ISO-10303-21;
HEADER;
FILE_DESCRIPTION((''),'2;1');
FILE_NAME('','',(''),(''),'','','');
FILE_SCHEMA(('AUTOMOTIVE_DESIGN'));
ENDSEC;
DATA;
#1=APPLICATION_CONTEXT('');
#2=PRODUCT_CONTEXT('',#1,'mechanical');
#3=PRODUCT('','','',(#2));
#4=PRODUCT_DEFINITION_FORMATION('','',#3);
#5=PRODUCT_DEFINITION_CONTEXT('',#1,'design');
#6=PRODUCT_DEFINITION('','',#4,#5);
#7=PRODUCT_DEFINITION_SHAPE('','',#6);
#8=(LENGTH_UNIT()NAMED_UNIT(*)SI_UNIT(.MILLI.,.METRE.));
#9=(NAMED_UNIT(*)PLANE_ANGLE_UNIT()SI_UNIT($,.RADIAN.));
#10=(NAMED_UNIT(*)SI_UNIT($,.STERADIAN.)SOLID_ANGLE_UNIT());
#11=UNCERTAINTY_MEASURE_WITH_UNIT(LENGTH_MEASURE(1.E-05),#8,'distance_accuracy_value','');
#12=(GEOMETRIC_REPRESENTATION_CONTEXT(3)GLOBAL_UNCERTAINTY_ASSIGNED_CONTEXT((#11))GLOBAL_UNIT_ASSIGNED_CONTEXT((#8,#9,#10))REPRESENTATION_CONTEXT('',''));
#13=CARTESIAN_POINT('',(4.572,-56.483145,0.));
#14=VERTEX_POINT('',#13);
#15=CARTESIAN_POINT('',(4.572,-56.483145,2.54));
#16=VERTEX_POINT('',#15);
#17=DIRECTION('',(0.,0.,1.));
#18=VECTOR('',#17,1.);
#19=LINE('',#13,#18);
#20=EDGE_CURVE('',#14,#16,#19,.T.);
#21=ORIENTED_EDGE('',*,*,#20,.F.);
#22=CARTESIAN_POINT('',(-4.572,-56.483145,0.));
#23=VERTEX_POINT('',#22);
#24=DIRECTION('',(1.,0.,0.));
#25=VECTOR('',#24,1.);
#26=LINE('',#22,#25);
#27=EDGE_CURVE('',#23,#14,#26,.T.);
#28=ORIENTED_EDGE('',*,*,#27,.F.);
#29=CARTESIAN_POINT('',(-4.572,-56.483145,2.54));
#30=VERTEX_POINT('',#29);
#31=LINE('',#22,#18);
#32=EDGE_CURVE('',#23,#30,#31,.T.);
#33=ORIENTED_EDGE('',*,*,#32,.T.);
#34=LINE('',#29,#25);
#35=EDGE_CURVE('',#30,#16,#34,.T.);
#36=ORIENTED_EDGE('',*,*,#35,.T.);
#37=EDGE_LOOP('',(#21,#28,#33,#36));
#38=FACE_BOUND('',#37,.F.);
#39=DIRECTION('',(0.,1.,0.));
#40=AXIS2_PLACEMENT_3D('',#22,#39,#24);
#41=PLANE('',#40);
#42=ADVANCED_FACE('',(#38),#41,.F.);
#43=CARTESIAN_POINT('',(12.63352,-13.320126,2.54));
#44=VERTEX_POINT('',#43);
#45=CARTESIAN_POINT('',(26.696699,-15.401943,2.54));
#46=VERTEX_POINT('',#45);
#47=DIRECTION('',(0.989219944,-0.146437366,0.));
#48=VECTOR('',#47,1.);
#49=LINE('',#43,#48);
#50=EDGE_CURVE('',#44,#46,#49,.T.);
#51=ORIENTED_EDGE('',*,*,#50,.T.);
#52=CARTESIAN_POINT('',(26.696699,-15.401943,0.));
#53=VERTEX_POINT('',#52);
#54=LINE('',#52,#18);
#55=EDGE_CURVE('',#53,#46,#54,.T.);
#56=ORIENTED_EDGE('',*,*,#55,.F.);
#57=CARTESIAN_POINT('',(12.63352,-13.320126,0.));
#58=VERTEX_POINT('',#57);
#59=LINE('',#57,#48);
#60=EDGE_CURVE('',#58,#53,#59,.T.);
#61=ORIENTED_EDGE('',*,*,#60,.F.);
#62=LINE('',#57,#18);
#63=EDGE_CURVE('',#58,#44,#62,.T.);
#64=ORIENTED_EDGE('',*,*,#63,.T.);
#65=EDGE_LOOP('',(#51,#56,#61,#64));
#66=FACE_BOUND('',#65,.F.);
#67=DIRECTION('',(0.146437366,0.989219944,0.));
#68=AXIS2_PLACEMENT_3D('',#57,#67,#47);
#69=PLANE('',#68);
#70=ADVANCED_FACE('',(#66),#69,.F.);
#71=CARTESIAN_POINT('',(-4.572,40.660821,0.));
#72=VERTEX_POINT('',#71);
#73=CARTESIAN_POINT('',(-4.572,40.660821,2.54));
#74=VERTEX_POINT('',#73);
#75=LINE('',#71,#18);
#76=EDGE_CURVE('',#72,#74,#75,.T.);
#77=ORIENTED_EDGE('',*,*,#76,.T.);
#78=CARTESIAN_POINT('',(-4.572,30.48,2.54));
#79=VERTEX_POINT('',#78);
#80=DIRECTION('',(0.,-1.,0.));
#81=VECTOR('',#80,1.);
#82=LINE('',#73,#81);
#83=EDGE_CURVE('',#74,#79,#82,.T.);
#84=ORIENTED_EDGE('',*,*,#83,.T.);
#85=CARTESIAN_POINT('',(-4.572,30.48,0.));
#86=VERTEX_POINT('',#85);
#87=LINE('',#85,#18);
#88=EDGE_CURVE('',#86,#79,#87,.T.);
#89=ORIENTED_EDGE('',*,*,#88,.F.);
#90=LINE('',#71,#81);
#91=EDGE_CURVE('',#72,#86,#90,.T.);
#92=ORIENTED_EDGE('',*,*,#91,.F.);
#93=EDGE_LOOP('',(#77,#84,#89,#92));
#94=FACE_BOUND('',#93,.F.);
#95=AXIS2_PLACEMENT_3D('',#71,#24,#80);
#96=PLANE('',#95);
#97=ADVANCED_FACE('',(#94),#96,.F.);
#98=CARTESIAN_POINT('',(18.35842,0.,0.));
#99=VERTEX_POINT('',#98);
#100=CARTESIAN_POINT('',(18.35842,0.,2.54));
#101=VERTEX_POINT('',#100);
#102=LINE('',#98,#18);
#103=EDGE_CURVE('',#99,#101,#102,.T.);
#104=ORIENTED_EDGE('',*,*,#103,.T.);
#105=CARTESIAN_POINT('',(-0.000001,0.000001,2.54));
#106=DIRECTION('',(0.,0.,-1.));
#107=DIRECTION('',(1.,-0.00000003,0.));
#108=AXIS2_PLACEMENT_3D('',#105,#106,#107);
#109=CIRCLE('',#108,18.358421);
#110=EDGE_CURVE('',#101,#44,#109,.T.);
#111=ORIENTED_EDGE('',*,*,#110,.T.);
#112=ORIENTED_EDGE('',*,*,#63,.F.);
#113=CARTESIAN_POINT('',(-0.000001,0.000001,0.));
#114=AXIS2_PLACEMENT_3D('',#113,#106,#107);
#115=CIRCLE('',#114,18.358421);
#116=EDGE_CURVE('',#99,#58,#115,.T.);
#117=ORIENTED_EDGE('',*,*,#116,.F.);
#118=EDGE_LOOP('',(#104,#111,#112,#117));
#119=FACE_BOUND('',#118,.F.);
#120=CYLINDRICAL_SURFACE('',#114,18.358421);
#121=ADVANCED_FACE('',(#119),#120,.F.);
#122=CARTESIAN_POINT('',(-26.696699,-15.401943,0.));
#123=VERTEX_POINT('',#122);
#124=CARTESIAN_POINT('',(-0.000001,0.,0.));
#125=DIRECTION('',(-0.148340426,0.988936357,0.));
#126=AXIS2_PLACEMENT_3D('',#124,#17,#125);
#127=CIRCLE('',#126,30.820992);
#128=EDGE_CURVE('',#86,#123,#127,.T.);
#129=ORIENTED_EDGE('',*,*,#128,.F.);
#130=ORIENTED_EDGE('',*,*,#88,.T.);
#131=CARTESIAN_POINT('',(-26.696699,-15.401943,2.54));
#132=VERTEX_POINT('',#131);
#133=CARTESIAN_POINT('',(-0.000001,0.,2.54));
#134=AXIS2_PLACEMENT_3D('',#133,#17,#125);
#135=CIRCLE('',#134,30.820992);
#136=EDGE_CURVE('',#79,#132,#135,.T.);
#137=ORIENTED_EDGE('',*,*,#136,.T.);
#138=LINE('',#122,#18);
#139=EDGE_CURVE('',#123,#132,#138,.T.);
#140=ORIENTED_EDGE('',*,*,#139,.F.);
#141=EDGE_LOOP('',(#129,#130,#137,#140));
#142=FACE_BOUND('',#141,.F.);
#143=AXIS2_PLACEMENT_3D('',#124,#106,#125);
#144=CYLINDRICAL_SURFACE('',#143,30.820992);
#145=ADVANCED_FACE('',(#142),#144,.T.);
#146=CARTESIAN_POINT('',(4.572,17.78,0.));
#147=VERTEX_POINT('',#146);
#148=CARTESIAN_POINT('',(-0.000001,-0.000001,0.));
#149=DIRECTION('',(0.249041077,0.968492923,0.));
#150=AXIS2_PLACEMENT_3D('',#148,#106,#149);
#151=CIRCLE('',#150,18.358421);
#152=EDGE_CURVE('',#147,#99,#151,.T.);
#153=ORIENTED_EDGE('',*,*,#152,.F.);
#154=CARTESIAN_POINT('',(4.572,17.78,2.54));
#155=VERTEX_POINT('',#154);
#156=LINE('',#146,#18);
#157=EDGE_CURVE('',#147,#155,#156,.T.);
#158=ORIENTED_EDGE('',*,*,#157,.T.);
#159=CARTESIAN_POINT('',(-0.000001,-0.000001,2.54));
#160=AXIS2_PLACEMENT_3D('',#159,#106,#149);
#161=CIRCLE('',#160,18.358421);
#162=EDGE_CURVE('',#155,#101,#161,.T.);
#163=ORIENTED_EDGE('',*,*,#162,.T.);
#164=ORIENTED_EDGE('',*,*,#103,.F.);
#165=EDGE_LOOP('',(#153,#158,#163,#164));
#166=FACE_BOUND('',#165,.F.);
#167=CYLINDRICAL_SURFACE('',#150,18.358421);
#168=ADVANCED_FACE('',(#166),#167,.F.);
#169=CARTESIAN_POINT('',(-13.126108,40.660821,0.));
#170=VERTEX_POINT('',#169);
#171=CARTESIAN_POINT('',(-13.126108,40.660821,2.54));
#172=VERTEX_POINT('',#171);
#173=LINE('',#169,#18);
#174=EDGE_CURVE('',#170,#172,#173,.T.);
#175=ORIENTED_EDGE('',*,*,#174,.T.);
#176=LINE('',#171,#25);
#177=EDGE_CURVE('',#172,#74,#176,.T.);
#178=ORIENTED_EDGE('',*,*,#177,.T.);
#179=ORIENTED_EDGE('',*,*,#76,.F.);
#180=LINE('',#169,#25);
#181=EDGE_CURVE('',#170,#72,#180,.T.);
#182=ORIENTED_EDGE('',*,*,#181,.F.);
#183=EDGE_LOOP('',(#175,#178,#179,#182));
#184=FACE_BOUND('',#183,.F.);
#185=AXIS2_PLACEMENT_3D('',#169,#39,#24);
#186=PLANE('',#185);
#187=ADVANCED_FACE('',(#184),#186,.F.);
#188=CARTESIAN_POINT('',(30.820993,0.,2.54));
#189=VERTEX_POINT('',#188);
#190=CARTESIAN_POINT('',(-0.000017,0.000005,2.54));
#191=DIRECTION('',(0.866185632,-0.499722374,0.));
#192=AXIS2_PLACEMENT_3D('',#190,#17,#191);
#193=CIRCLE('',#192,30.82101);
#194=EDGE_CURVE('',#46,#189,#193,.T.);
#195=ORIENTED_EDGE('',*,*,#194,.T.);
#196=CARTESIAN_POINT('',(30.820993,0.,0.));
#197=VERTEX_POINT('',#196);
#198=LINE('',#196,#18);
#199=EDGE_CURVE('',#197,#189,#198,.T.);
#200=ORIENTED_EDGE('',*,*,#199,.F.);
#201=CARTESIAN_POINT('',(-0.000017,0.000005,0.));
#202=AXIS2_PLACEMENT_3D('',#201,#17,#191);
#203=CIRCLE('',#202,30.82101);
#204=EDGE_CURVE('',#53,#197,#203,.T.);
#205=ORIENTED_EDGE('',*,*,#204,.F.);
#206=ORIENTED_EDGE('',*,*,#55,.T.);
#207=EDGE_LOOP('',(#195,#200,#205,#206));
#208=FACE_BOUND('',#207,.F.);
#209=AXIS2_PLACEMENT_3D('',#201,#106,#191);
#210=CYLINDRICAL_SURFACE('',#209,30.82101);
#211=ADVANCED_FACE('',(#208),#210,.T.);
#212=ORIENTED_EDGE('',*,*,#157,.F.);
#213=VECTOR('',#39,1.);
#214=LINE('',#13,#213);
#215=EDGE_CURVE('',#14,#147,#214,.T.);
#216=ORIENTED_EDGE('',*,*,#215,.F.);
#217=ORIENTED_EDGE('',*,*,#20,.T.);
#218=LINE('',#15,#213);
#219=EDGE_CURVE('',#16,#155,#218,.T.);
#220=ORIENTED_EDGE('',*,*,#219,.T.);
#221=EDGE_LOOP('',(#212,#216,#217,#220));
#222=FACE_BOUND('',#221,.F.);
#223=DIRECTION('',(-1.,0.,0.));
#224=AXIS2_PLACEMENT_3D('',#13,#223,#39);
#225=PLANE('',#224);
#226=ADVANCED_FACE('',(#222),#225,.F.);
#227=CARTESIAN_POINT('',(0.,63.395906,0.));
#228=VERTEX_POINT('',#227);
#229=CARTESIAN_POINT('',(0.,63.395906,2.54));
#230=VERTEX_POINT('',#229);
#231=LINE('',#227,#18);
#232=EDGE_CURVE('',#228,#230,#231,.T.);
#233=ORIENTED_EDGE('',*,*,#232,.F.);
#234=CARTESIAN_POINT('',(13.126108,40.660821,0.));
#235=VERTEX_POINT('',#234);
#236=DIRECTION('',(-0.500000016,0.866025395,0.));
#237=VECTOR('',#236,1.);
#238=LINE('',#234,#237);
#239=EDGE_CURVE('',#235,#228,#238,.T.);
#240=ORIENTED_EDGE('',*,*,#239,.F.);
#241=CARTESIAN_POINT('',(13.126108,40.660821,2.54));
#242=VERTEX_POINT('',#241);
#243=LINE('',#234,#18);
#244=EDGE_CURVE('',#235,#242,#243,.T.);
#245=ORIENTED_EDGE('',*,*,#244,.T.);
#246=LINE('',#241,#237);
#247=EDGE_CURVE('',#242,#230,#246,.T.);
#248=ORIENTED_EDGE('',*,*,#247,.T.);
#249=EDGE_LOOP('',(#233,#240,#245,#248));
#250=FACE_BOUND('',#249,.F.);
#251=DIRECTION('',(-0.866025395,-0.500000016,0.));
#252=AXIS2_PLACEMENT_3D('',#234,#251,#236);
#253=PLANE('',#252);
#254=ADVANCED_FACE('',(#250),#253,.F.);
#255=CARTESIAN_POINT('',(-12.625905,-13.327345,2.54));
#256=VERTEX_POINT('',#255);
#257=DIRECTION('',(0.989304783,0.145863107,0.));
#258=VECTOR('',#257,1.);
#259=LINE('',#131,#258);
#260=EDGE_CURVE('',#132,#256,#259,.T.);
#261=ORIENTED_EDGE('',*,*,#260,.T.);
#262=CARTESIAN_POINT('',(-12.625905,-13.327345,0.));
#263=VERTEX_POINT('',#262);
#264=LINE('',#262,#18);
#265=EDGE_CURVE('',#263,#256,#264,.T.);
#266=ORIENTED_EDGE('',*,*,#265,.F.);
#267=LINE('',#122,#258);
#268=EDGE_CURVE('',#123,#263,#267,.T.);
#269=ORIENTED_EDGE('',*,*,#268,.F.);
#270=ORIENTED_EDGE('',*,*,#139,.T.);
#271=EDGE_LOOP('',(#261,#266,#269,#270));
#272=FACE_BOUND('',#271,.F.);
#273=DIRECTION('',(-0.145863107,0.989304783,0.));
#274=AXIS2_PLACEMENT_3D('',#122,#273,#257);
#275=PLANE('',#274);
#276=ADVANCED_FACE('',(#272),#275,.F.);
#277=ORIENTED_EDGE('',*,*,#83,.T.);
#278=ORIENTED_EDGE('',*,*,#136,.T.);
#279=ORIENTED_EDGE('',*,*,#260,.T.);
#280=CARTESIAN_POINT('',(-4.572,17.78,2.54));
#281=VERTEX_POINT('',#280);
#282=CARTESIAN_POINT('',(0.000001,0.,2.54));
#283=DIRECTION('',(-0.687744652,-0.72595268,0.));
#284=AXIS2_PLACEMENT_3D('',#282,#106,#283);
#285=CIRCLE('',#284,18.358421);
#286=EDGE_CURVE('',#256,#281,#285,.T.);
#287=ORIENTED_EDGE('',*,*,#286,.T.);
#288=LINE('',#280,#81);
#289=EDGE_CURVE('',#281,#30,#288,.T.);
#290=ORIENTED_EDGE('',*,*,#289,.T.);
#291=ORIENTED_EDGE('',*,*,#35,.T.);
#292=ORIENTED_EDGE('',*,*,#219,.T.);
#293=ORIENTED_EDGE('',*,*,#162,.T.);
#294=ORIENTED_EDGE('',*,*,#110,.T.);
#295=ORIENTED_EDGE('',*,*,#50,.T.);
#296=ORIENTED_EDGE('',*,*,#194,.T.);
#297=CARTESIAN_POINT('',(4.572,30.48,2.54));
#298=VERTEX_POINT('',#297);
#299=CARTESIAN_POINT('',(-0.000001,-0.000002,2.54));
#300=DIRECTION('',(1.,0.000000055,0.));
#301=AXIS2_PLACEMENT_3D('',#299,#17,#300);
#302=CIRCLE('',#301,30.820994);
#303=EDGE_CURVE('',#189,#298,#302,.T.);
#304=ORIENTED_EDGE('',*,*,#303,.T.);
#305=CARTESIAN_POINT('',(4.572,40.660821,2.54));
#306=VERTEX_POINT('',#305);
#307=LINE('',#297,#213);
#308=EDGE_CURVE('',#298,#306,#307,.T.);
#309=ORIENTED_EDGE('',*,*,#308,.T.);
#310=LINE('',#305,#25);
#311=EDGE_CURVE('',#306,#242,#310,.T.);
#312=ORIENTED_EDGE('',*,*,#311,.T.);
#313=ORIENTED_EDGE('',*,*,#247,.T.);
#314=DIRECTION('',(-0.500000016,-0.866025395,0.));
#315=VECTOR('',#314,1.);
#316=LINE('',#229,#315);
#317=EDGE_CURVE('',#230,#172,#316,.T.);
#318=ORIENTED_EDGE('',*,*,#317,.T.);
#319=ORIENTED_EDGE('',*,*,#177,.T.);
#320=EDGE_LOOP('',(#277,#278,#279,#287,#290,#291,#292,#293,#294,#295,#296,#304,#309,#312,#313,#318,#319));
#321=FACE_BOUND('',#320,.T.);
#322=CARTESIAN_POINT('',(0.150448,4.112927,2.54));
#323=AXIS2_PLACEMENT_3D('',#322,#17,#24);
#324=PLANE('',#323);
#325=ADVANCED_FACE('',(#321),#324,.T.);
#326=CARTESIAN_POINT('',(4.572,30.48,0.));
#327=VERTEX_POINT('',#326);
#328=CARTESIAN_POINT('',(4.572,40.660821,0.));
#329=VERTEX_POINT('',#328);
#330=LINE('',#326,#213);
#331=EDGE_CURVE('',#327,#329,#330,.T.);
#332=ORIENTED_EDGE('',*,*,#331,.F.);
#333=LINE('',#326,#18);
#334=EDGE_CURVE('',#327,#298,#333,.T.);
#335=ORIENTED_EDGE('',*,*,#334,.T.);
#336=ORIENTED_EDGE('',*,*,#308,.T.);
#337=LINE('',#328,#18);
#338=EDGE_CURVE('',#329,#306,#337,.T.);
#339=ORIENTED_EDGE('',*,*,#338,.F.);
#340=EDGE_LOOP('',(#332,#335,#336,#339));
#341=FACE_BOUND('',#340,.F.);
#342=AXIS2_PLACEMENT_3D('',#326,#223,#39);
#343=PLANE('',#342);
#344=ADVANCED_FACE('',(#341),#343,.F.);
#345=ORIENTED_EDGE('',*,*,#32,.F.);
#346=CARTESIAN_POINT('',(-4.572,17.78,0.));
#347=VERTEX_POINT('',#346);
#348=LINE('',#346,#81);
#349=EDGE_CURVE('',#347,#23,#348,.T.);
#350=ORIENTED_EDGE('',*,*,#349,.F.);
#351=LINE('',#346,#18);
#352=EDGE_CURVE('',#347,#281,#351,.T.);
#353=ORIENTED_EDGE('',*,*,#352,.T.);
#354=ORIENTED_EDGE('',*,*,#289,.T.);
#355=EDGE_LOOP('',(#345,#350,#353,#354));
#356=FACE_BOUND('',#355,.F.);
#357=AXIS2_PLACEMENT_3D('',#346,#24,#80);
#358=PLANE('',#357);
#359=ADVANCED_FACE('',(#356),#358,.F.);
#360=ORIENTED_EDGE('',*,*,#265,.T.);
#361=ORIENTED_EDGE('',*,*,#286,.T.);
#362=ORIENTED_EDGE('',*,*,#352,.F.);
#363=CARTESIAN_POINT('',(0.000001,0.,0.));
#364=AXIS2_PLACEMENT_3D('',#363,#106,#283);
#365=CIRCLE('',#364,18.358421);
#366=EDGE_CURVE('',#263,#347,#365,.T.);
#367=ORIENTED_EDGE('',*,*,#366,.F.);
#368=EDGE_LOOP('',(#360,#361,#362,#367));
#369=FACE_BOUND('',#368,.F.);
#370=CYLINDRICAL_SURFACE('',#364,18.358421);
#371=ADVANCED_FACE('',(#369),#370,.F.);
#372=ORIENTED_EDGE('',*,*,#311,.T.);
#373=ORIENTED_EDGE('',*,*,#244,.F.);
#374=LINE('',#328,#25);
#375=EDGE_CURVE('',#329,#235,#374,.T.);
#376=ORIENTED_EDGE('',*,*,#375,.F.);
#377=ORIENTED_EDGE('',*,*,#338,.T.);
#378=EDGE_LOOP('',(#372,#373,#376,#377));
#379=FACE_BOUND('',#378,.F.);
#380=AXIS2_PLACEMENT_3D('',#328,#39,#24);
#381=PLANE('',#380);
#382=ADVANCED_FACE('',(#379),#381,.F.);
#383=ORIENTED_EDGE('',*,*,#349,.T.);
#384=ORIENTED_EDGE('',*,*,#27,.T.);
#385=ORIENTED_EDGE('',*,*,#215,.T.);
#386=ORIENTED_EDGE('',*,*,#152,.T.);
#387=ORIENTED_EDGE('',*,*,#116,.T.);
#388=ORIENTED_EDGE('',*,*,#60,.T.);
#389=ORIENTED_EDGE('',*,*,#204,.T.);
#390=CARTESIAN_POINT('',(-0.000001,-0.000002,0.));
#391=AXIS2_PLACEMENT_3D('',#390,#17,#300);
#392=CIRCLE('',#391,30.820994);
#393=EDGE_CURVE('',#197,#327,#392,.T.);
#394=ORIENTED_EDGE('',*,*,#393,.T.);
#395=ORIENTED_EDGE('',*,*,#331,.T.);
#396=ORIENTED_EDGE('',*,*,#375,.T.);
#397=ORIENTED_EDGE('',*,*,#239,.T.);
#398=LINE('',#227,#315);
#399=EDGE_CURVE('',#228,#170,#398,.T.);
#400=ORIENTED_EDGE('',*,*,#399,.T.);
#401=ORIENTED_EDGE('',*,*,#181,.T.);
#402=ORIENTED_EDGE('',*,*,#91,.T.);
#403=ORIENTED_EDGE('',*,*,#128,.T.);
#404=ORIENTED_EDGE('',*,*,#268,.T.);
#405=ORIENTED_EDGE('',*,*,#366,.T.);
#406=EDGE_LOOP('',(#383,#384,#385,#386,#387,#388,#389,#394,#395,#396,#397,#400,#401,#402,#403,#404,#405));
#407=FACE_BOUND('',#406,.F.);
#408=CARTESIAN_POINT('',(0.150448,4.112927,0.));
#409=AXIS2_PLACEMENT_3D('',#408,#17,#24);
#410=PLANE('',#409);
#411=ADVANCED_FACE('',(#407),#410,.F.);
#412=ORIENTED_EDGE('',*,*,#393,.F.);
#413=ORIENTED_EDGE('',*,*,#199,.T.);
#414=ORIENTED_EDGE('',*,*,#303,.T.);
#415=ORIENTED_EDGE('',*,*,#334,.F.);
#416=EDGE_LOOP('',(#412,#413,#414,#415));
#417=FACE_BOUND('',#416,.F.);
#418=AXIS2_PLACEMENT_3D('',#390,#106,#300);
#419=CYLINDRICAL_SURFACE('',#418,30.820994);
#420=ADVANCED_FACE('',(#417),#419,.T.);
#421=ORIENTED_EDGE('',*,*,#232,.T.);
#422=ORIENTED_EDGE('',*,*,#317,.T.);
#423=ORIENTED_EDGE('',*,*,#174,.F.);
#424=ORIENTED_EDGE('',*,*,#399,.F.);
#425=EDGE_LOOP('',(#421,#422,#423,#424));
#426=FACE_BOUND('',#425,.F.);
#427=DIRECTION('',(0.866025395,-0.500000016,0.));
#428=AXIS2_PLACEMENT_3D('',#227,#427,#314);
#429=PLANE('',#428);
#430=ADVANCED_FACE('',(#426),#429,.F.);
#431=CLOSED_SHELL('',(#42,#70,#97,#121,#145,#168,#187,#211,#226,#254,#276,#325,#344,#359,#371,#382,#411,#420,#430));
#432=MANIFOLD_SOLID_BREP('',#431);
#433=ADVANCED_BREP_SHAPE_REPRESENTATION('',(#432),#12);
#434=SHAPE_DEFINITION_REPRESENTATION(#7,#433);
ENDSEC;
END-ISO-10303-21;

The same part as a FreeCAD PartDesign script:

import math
import FreeCAD as App
import Part
import Sketcher
Q = App.Units.Quantity

doc = App.newDocument("Part")
body = doc.addObject("PartDesign::Body", "Body")

sketch1 = body.newObject("Sketcher::SketchObject", "Sketch")
sketch1.AttachmentSupport = (doc.getObject("XY_Plane"), [""])
sketch1.MapMode = "FlatFace"
sketch1.addGeometry([
    Part.LineSegment(App.Vector(-4.572, 17.78, 0), App.Vector(-4.572, -56.483145, 0)),
    Part.LineSegment(App.Vector(-4.572, -56.483145, 0), App.Vector(4.572, -56.483145, 0)),
    Part.LineSegment(App.Vector(4.572, -56.483145, 0), App.Vector(4.572, 17.78, 0)),
    Part.ArcOfCircle(Part.Circle(App.Vector(-0.000001, -0.000001, 0), App.Vector(0, 0, 1), 18.358421), math.radians(0.000002), math.radians(75.579225)),
    Part.ArcOfCircle(Part.Circle(App.Vector(-0.000001, 0.000001, 0), App.Vector(0, 0, 1), 18.358421), math.radians(-46.51541), math.radians(-0.000002)),
    Part.LineSegment(App.Vector(12.63352, -13.320126, 0), App.Vector(26.696699, -15.401943, 0)),
    Part.ArcOfCircle(Part.Circle(App.Vector(-0.000017, 0.000005, 0), App.Vector(0, 0, 1), 30.82101), math.radians(-29.981634), math.radians(-0.00001)),
    Part.ArcOfCircle(Part.Circle(App.Vector(-0.000001, -0.000002, 0), App.Vector(0, 0, 1), 30.820994), math.radians(0.000003), math.radians(81.469232)),
    Part.LineSegment(App.Vector(4.572, 30.48, 0), App.Vector(4.572, 40.660821, 0)),
    Part.LineSegment(App.Vector(4.572, 40.660821, 0), App.Vector(13.126108, 40.660821, 0)),
    Part.LineSegment(App.Vector(13.126108, 40.660821, 0), App.Vector(0, 63.395906, 0)),
    Part.LineSegment(App.Vector(0, 63.395906, 0), App.Vector(-13.126108, 40.660821, 0)),
    Part.LineSegment(App.Vector(-13.126108, 40.660821, 0), App.Vector(-4.572, 40.660821, 0)),
    Part.LineSegment(App.Vector(-4.572, 40.660821, 0), App.Vector(-4.572, 30.48, 0)),
    Part.ArcOfCircle(Part.Circle(App.Vector(-0.000001, 0, 0), App.Vector(0, 0, 1), 30.820992), math.radians(98.530764), math.radians(209.981643)),
    Part.LineSegment(App.Vector(-26.696699, -15.401943, 0), App.Vector(-12.625905, -13.327345, 0)),
    Part.ArcOfCircle(Part.Circle(App.Vector(0.000001, 0, 0), App.Vector(0, 0, 1), 18.358421), math.radians(104.420774), math.radians(226.548157)),
], False)
sketch1.addConstraint([
    Sketcher.Constraint("Coincident", 0, 2, 1, 1),
    Sketcher.Constraint("Coincident", 1, 2, 2, 1),
    Sketcher.Constraint("Coincident", 2, 2, 3, 2),
    Sketcher.Constraint("Tangent", 3, 1, 4, 2),
    Sketcher.Constraint("Coincident", 4, 1, 5, 1),
    Sketcher.Constraint("Coincident", 5, 2, 6, 1),
    Sketcher.Constraint("Tangent", 6, 2, 7, 1),
    Sketcher.Constraint("Coincident", 7, 2, 8, 1),
    Sketcher.Constraint("Coincident", 8, 2, 9, 1),
    Sketcher.Constraint("Coincident", 9, 2, 10, 1),
    Sketcher.Constraint("Coincident", 10, 2, 11, 1),
    Sketcher.Constraint("Coincident", 11, 2, 12, 1),
    Sketcher.Constraint("Coincident", 12, 2, 13, 1),
    Sketcher.Constraint("Coincident", 13, 2, 14, 1),
    Sketcher.Constraint("Coincident", 14, 2, 15, 1),
    Sketcher.Constraint("Coincident", 15, 2, 16, 2),
    Sketcher.Constraint("Coincident", 16, 1, 0, 1),
    Sketcher.Constraint("Vertical", 0),
    Sketcher.Constraint("Horizontal", 1),
    Sketcher.Constraint("Vertical", 2),
    Sketcher.Constraint("Vertical", 8),
    Sketcher.Constraint("Horizontal", 9),
    Sketcher.Constraint("Horizontal", 12),
    Sketcher.Constraint("Vertical", 13),
    Sketcher.Constraint("Coincident", 3, 3, -1, 1),
    Sketcher.Constraint("Coincident", 7, 3, -1, 1),
    Sketcher.Constraint("Coincident", 14, 3, -1, 1),
    Sketcher.Constraint("Coincident", 16, 3, -1, 1),
    Sketcher.Constraint("Equal", 3, 4),
    Sketcher.Constraint("Equal", 4, 16),
    Sketcher.Constraint("Symmetric", 9, 2, 11, 2, -2),
    Sketcher.Constraint("Symmetric", 7, 2, 13, 2, -2),
    Sketcher.Constraint("Symmetric", 5, 2, 14, 2, -2),
    Sketcher.Constraint("PointOnObject", 3, 1, -1),
    Sketcher.Constraint("PointOnObject", 6, 2, -1),
    Sketcher.Constraint("PointOnObject", 10, 2, -2),
    Sketcher.Constraint("Horizontal", 2, 2, 16, 1),
    Sketcher.Constraint("Vertical", 2, 2, 7, 2),
    Sketcher.Constraint("Angle", 10, Q("120.000001 deg")),
    Sketcher.Constraint("DistanceX", 1, 1, 1, 2, Q("0.36 in")),
    Sketcher.Constraint("DistanceY", -1, 1, 2, 2, Q("0.7 in")),
    Sketcher.Constraint("DistanceY", -1, 1, 7, 2, Q("1.2 in")),
    Sketcher.Constraint("DistanceY", 8, 1, 8, 2, Q("10.180821 mm")),
    Sketcher.Constraint("DistanceX", -1, 1, 5, 2, Q("26.696699 mm")),
    Sketcher.Constraint("DistanceX", 4, 1, 3, 1, Q("5.7249 mm")),
    Sketcher.Constraint("DistanceY", 6, 3, 10, 2, Q("63.395901 mm")),
    Sketcher.Constraint("DistanceY", 14, 2, 15, 2, Q("2.074598 mm")),
    Sketcher.Constraint("DistanceY", 0, 2, 0, 1, Q("74.263145 mm")),
])
pad1 = body.newObject("PartDesign::Pad", "Pad")
pad1.Profile = sketch1
pad1.Length = Q("0.1 in")

doc.recompute()
